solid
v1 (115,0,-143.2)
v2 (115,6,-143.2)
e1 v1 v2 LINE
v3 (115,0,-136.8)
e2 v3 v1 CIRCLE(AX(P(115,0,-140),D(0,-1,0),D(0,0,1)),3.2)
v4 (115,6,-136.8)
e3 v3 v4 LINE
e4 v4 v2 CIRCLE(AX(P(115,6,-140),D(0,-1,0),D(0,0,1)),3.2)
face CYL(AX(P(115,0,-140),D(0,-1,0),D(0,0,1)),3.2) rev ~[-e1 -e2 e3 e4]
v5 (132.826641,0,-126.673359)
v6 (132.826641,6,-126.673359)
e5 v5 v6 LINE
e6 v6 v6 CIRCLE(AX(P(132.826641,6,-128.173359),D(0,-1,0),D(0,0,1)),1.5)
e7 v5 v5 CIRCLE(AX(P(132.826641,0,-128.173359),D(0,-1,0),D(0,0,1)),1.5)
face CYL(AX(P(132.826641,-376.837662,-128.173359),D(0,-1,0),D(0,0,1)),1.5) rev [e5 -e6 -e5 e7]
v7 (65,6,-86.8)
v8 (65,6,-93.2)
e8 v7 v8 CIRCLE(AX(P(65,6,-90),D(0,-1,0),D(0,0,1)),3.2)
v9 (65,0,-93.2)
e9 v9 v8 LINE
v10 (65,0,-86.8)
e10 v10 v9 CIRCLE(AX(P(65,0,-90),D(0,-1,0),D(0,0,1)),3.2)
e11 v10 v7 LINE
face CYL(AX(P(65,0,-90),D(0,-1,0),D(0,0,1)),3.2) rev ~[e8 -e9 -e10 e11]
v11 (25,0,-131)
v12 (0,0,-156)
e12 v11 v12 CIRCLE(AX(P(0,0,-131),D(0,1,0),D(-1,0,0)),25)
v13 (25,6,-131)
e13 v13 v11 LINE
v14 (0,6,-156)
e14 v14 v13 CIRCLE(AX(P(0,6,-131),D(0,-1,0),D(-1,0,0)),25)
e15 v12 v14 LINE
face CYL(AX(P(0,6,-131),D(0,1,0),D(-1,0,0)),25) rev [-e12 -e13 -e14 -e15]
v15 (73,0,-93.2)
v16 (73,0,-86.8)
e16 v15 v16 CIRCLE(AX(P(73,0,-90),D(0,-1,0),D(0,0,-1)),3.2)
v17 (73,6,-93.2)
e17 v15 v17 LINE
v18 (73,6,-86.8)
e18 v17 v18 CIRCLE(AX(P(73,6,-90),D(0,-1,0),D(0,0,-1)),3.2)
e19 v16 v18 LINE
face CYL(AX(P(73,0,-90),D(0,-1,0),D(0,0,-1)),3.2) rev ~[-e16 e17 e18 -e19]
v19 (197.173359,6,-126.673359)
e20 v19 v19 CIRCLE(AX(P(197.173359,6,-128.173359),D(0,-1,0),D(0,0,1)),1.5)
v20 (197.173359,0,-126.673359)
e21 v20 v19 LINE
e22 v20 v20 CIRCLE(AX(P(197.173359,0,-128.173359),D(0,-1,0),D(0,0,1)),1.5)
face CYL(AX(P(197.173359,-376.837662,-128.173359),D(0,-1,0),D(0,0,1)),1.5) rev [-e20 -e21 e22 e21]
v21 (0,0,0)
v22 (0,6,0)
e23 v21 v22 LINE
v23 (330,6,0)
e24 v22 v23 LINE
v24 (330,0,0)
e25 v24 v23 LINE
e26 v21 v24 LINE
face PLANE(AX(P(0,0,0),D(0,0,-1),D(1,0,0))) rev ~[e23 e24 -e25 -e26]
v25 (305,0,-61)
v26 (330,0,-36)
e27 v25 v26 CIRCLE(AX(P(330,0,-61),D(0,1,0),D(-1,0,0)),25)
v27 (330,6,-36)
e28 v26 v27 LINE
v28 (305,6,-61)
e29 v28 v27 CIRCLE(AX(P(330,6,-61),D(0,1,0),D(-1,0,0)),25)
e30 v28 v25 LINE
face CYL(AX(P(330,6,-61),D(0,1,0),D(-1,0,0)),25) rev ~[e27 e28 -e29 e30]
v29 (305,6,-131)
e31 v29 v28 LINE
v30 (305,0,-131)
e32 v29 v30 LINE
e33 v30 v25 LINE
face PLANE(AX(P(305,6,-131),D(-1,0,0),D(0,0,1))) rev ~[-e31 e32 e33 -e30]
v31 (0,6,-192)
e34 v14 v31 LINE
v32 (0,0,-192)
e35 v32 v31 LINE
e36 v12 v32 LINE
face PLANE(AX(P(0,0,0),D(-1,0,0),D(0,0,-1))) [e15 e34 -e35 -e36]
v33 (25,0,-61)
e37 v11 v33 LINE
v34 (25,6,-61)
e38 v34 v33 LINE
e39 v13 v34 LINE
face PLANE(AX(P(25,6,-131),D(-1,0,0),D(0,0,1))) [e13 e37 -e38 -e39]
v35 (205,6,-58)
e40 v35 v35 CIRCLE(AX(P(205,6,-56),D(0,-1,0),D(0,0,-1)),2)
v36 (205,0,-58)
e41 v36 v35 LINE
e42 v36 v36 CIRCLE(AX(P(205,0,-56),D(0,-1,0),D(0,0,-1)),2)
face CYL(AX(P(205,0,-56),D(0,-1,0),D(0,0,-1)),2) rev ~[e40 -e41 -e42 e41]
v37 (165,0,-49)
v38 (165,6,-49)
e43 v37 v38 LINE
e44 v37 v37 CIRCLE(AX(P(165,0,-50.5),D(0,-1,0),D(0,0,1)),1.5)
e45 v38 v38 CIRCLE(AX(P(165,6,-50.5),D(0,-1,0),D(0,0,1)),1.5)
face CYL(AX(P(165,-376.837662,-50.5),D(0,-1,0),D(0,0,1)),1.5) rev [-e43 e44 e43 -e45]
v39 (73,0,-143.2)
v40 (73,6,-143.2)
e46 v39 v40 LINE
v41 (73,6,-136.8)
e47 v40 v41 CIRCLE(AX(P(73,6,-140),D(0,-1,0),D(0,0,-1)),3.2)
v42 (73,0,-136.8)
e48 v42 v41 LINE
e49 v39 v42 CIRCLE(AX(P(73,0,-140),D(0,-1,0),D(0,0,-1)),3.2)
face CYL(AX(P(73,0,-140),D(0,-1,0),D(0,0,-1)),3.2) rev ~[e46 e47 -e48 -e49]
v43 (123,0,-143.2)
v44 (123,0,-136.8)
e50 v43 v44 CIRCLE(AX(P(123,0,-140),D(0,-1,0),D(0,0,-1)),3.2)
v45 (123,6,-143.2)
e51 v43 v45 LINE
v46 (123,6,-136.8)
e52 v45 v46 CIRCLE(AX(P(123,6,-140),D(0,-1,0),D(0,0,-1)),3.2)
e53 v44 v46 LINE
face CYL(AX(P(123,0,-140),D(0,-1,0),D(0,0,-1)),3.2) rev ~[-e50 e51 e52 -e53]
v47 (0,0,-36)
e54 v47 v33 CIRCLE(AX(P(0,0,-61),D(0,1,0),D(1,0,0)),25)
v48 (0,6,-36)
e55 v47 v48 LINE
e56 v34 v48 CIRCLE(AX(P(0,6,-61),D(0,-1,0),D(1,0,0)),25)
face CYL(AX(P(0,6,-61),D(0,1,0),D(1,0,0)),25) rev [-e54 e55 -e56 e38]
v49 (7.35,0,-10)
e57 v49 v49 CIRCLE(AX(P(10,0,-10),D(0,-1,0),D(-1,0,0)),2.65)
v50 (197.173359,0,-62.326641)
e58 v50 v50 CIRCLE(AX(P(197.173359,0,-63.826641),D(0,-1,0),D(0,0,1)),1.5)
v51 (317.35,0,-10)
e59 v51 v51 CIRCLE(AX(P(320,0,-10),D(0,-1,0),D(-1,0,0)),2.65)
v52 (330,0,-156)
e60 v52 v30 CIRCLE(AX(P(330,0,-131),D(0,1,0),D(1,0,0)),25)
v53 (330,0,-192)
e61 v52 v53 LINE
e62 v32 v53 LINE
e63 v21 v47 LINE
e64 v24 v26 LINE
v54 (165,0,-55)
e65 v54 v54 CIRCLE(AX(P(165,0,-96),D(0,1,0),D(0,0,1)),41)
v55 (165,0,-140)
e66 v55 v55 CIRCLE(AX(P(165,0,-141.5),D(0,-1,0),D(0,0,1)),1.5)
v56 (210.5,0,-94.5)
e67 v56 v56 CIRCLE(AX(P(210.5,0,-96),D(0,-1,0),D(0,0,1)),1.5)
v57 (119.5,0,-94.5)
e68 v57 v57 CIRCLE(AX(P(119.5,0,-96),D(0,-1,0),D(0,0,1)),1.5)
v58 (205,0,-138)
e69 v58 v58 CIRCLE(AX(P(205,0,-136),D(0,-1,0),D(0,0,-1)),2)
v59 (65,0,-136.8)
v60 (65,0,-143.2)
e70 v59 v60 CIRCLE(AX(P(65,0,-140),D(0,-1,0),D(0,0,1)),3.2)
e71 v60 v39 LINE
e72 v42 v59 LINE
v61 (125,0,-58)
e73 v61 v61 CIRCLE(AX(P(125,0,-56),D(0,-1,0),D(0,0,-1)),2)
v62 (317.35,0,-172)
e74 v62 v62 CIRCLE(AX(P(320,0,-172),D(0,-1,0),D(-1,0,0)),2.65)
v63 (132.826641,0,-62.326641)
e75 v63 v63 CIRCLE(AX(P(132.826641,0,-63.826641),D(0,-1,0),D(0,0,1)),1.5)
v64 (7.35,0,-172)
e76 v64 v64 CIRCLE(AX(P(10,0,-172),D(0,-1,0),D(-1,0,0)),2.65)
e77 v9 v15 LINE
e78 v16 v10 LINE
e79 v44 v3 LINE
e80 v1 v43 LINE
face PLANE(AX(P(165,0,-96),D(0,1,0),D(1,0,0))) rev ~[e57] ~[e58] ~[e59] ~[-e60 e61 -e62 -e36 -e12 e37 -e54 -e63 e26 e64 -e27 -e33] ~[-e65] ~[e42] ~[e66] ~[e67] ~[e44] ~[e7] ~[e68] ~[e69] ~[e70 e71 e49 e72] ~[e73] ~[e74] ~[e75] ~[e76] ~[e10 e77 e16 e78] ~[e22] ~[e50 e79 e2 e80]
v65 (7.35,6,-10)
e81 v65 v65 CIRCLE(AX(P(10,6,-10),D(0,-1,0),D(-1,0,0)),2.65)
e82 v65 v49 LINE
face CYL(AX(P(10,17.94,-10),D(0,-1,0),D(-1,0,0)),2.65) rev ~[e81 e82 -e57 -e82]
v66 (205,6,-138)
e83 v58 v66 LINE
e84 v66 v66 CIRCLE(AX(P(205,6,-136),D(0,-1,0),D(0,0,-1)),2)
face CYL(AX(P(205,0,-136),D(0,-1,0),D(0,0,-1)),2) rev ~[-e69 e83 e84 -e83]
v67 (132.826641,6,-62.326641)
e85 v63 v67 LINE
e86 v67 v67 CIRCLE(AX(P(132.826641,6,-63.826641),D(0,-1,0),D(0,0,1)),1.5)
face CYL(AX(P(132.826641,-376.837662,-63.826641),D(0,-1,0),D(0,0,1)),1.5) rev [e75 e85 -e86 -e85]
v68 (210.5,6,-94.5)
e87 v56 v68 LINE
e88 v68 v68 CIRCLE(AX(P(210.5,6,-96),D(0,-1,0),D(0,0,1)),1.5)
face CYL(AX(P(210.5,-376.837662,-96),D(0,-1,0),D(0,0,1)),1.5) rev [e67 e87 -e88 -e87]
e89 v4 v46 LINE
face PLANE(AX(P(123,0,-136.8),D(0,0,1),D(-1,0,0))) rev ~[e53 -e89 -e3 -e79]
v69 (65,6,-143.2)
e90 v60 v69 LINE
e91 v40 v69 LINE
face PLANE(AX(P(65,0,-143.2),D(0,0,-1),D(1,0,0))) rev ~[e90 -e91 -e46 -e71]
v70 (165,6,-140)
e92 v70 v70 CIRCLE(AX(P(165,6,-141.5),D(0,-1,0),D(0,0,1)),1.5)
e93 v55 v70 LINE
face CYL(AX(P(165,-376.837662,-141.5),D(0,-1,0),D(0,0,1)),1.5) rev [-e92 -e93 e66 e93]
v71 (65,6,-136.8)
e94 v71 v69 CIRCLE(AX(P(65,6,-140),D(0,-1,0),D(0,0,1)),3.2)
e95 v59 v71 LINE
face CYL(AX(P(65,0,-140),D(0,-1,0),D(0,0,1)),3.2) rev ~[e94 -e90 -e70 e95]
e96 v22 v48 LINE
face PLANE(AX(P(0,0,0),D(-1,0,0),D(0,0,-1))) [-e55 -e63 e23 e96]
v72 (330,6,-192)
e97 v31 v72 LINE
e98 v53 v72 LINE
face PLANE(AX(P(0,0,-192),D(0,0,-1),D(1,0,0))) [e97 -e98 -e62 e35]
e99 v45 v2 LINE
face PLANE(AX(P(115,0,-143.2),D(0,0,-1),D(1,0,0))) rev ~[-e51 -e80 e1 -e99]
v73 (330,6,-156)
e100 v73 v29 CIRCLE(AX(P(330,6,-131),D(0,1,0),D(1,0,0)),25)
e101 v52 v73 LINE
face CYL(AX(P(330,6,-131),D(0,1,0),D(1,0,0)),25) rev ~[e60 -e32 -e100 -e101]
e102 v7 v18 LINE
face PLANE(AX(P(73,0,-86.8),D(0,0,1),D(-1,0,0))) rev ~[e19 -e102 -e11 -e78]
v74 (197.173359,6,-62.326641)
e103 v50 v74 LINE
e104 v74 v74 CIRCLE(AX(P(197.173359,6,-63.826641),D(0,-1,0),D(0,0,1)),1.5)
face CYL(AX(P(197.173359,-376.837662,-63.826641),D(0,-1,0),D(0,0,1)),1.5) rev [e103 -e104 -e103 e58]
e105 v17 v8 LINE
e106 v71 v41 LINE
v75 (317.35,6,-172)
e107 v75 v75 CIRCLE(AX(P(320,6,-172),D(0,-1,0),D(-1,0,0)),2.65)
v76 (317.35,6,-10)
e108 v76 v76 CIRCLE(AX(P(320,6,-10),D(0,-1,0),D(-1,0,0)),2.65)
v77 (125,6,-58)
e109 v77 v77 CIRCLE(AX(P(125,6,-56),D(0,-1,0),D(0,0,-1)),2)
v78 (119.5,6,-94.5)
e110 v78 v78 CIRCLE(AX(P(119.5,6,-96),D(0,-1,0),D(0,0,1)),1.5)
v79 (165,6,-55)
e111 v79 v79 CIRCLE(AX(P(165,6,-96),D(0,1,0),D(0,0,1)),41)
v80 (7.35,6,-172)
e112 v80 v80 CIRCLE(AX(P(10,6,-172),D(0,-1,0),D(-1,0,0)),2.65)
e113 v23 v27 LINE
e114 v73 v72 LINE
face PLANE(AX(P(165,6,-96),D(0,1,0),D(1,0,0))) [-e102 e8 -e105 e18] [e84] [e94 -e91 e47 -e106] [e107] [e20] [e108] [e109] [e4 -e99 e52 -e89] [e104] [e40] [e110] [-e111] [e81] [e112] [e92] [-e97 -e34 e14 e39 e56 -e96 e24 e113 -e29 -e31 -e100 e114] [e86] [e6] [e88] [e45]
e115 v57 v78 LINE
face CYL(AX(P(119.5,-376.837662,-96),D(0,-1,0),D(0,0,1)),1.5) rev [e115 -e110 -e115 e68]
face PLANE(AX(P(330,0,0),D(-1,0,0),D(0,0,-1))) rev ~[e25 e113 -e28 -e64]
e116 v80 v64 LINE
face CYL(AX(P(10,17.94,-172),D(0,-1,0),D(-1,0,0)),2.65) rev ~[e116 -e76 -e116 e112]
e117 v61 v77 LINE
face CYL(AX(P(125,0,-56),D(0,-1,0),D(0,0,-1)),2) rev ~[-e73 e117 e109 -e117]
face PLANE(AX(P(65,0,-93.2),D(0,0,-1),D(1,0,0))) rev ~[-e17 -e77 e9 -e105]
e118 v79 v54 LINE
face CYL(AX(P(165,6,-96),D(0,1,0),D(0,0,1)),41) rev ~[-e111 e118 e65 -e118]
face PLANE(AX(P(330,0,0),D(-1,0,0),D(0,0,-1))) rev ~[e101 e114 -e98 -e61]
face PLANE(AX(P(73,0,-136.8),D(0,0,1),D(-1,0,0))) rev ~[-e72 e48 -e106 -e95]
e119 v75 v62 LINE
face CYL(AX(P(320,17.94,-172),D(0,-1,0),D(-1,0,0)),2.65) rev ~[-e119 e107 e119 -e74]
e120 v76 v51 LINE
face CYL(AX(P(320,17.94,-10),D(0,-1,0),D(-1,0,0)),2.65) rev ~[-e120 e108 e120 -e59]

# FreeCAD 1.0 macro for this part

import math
import FreeCAD as App
import Part
import Sketcher
from FreeCAD import Vector


def add_polygon(sketch, points):
    """Adds a closed chain of lines whose ends are joined by coincident constraints."""
    first, n = sketch.GeometryCount, len(points)
    for a, b in zip(points, points[1:] + points[:1]):
        sketch.addGeometry(Part.LineSegment(App.Vector(*a, 0), App.Vector(*b, 0)), False)
    for i in range(n):
        sketch.addConstraint(Sketcher.Constraint("Coincident", first + i, 2, first + (i + 1) % n, 1))

doc = App.newDocument("Part")
params = doc.addObject("Spreadsheet::Sheet", "Params")
for row, (alias, value) in enumerate([
    ("sketch1_width", "330 mm"),
    ("sketch1_height", "192 mm"),
    ("pad1_length", "6 mm"),
    ("sketch2_diameter", "3 mm"),
    ("sketch3_diameter", "82 mm"),
    ("sketch4_radius", "3.2 mm"),
    ("sketch4_width", "8 mm"),
    ("pocket3_length", "10 mm"),
    ("sketch5_diameter", "4 mm"),
    ("pocket4_length", "10 mm"),
    ("sketch6_diameter", "5.3 mm"),
    ("hole_diameter", "5.3 mm"),
    ("hole_depth", "11.94 mm"),
    ("sketch7_radius", "25 mm"),
    ("sketch7_height", "70 mm"),
], start=1):
    params.set(f"A{row}", alias)
    params.set(f"B{row}", "=" + value)
    params.setAlias(f"B{row}", alias)

body = doc.addObject("PartDesign::Body", "Body")

# Sketch on XZ plane
sketch1 = body.newObject("Sketcher::SketchObject", "Sketch")
sketch1.AttachmentSupport = (doc.getObject("XZ_Plane"), [""])
sketch1.MapMode = "FlatFace"
add_polygon(sketch1, [(0, -192), (0, 0), (330, 0), (330, -192)])  # lines 0-3
sketch1.addConstraint([
    Sketcher.Constraint("Vertical", 0),
    Sketcher.Constraint("Horizontal", 1),
    Sketcher.Constraint("Vertical", 2),
    Sketcher.Constraint("Horizontal", 3),
    Sketcher.Constraint("Coincident", 0, 2, -1, 1),
    Sketcher.Constraint("DistanceX", 1, 1, 1, 2, 330.0),
    Sketcher.Constraint("DistanceY", 0, 1, 0, 2, 192.0),
])
sketch1.setExpression("Constraints[9]", "Params.sketch1_width")
sketch1.setExpression("Constraints[10]", "Params.sketch1_height")
pad1 = body.newObject("PartDesign::Pad", "Pad")
pad1.Profile = sketch1
pad1.setExpression("Length", "Params.pad1_length")
pad1.Reversed = True

# Sketch on XZ plane
sketch2 = body.newObject("Sketcher::SketchObject", "Sketch001")
sketch2.AttachmentSupport = (doc.getObject("XZ_Plane"), [""])
sketch2.MapMode = "FlatFace"
sketch2.AttachmentOffset = App.Placement(Vector(0, 0, -6), App.Rotation())
sketch2.addGeometry([
    Part.Circle(Vector(165, -141.5, 0), Vector(0, 0, 1), 1.5),  # 0
    Part.Circle(Vector(197.173359, -128.173359, 0), Vector(0, 0, 1), 1.5),  # 1
    Part.Circle(Vector(210.5, -96, 0), Vector(0, 0, 1), 1.5),  # 2
    Part.Circle(Vector(165, -50.5, 0), Vector(0, 0, 1), 1.5),  # 3
    Part.Circle(Vector(132.826641, -63.826641, 0), Vector(0, 0, 1), 1.5),  # 4
    Part.Circle(Vector(119.5, -96, 0), Vector(0, 0, 1), 1.5),  # 5
    Part.Circle(Vector(132.826641, -128.173359, 0), Vector(0, 0, 1), 1.5),  # 6
    Part.Circle(Vector(197.173359, -63.826641, 0), Vector(0, 0, 1), 1.5),  # 7
], False)
sketch2.addConstraint([
    Sketcher.Constraint("Equal", 0, 1),
    Sketcher.Constraint("Equal", 1, 2),
    Sketcher.Constraint("Equal", 2, 3),
    Sketcher.Constraint("Equal", 3, 4),
    Sketcher.Constraint("Equal", 4, 5),
    Sketcher.Constraint("Equal", 5, 6),
    Sketcher.Constraint("Equal", 6, 7),
    Sketcher.Constraint("Horizontal", 2, 3, 5, 3),
    Sketcher.Constraint("Horizontal", 1, 3, 6, 3),
    Sketcher.Constraint("Horizontal", 4, 3, 7, 3),
    Sketcher.Constraint("Vertical", 0, 3, 3, 3),
    Sketcher.Constraint("Vertical", 4, 3, 6, 3),
    Sketcher.Constraint("Vertical", 1, 3, 7, 3),
    Sketcher.Constraint("Diameter", 0, 3.0),
    Sketcher.Constraint("DistanceX", -1, 1, 0, 3, 165.0),
    Sketcher.Constraint("DistanceY", 2, 3, -1, 1, 96.0),
    Sketcher.Constraint("DistanceY", 0, 3, 3, 3, 91.0),
    Sketcher.Constraint("DistanceX", 5, 3, 2, 3, 91.0),
    Sketcher.Constraint("DistanceY", 0, 3, -1, 1, 141.5),
    Sketcher.Constraint("DistanceX", -1, 1, 2, 3, 210.5),
    Sketcher.Constraint("DistanceX", -1, 1, 1, 3, 197.173359),
    Sketcher.Constraint("DistanceY", 1, 3, -1, 1, 128.173359),
    Sketcher.Constraint("DistanceX", -1, 1, 4, 3, 132.826641),
    Sketcher.Constraint("DistanceY", 4, 3, -1, 1, 63.826641),
])
sketch2.setExpression("Constraints[13]", "Params.sketch2_diameter")
pocket1 = body.newObject("PartDesign::Pocket", "Pocket")
pocket1.Profile = sketch2
pocket1.Type = "ThroughAll"
pocket1.Midplane = True

# Sketch on XZ plane
sketch3 = body.newObject("Sketcher::SketchObject", "Sketch002")
sketch3.AttachmentSupport = (doc.getObject("XZ_Plane"), [""])
sketch3.MapMode = "FlatFace"
sketch3.AttachmentOffset = App.Placement(Vector(0, 0, -6), App.Rotation())
sketch3.addGeometry(Part.Circle(Vector(165, -96, 0), Vector(0, 0, 1), 41), False)
sketch3.addConstraint([
    Sketcher.Constraint("Diameter", 0, 82.0),
    Sketcher.Constraint("DistanceX", -1, 1, 0, 3, 165.0),
    Sketcher.Constraint("DistanceY", 0, 3, -1, 1, 96.0),
])
sketch3.setExpression("Constraints[0]", "Params.sketch3_diameter")
pocket2 = body.newObject("PartDesign::Pocket", "Pocket001")
pocket2.Profile = sketch3
pocket2.Type = "ThroughAll"
pocket2.Reversed = True

# Sketch on XZ plane
sketch4 = body.newObject("Sketcher::SketchObject", "Sketch003")
sketch4.AttachmentSupport = (doc.getObject("XZ_Plane"), [""])
sketch4.MapMode = "FlatFace"
sketch4.addGeometry([
    Part.LineSegment(Vector(123, -136.8, 0), Vector(115, -136.8, 0)),  # 0
    Part.ArcOfCircle(Part.Circle(Vector(115, -140, 0), Vector(0, 0, 1), 3.2), math.radians(90), math.radians(270)),  # 1
    Part.LineSegment(Vector(115, -143.2, 0), Vector(123, -143.2, 0)),  # 2
    Part.ArcOfCircle(Part.Circle(Vector(123, -140, 0), Vector(0, 0, 1), 3.2), math.radians(-90), math.radians(90)),  # 3
    Part.LineSegment(Vector(73, -136.8, 0), Vector(65, -136.8, 0)),  # 4
    Part.ArcOfCircle(Part.Circle(Vector(65, -140, 0), Vector(0, 0, 1), 3.2), math.radians(90), math.radians(270)),  # 5
    Part.LineSegment(Vector(65, -143.2, 0), Vector(73, -143.2, 0)),  # 6
    Part.ArcOfCircle(Part.Circle(Vector(73, -140, 0), Vector(0, 0, 1), 3.2), math.radians(-90), math.radians(90)),  # 7
    Part.LineSegment(Vector(73, -86.8, 0), Vector(65, -86.8, 0)),  # 8
    Part.ArcOfCircle(Part.Circle(Vector(65, -90, 0), Vector(0, 0, 1), 3.2), math.radians(90), math.radians(270)),  # 9
    Part.LineSegment(Vector(65, -93.2, 0), Vector(73, -93.2, 0)),  # 10
    Part.ArcOfCircle(Part.Circle(Vector(73, -90, 0), Vector(0, 0, 1), 3.2), math.radians(-90), math.radians(90)),  # 11
], False)
sketch4.addConstraint([
    Sketcher.Constraint("Tangent", 0, 2, 1, 1),
    Sketcher.Constraint("Tangent", 1, 2, 2, 1),
    Sketcher.Constraint("Tangent", 2, 2, 3, 1),
    Sketcher.Constraint("Tangent", 3, 2, 0, 1),
    Sketcher.Constraint("Tangent", 4, 2, 5, 1),
    Sketcher.Constraint("Tangent", 5, 2, 6, 1),
    Sketcher.Constraint("Tangent", 6, 2, 7, 1),
    Sketcher.Constraint("Tangent", 7, 2, 4, 1),
    Sketcher.Constraint("Tangent", 8, 2, 9, 1),
    Sketcher.Constraint("Tangent", 9, 2, 10, 1),
    Sketcher.Constraint("Tangent", 10, 2, 11, 1),
    Sketcher.Constraint("Tangent", 11, 2, 8, 1),
    Sketcher.Constraint("Horizontal", 0),
    Sketcher.Constraint("Horizontal", 2),
    Sketcher.Constraint("Horizontal", 4),
    Sketcher.Constraint("Horizontal", 6),
    Sketcher.Constraint("Horizontal", 8),
    Sketcher.Constraint("Horizontal", 10),
    Sketcher.Constraint("Equal", 3, 5),
    Sketcher.Constraint("Equal", 7, 9),
    Sketcher.Constraint("Horizontal", 3, 3, 5, 3),
    Sketcher.Constraint("Vertical", 5, 3, 9, 3),
    Sketcher.Constraint("Vertical", 7, 3, 11, 3),
    Sketcher.Constraint("Equal", 2, 4),
    Sketcher.Constraint("Radius", 1, 3.2),
    Sketcher.Constraint("DistanceX", 0, 2, 0, 1, 8.0),
    Sketcher.Constraint("DistanceX", -1, 1, 1, 3, 115.0),
    Sketcher.Constraint("DistanceY", 1, 3, -1, 1, 140.0),
    Sketcher.Constraint("DistanceX", -1, 1, 5, 3, 65.0),
    Sketcher.Constraint("DistanceY", 9, 3, -1, 1, 90.0),
])
sketch4.setExpression("Constraints[24]", "Params.sketch4_radius")
sketch4.setExpression("Constraints[25]", "Params.sketch4_width")
pocket3 = body.newObject("PartDesign::Pocket", "Pocket002")
pocket3.Profile = sketch4
pocket3.setExpression("Length", "Params.pocket3_length")

# Sketch on XZ plane
sketch5 = body.newObject("Sketcher::SketchObject", "Sketch004")
sketch5.AttachmentSupport = (doc.getObject("XZ_Plane"), [""])
sketch5.MapMode = "FlatFace"
sketch5.addGeometry([
    Part.Circle(Vector(125, -56, 0), Vector(0, 0, 1), 2),
    Part.Circle(Vector(205, -56, 0), Vector(0, 0, 1), 2),
    Part.Circle(Vector(205, -136, 0), Vector(0, 0, 1), 2),
], False)
sketch5.addConstraint([
    Sketcher.Constraint("Equal", 0, 1),
    Sketcher.Constraint("Equal", 1, 2),
    Sketcher.Constraint("Horizontal", 0, 3, 1, 3),
    Sketcher.Constraint("Vertical", 1, 3, 2, 3),
    Sketcher.Constraint("Diameter", 0, 4.0),
    Sketcher.Constraint("DistanceX", -1, 1, 0, 3, 125.0),
    Sketcher.Constraint("DistanceY", 0, 3, -1, 1, 56.0),
    Sketcher.Constraint("DistanceX", -1, 1, 1, 3, 205.0),
    Sketcher.Constraint("DistanceY", 2, 3, -1, 1, 136.0),
])
sketch5.setExpression("Constraints[4]", "Params.sketch5_diameter")
pocket4 = body.newObject("PartDesign::Pocket", "Pocket003")
pocket4.Profile = sketch5
pocket4.setExpression("Length", "Params.pocket4_length")

# Sketch on XZ plane
sketch6 = body.newObject("Sketcher::SketchObject", "Sketch005")
sketch6.AttachmentSupport = (doc.getObject("XZ_Plane"), [""])
sketch6.MapMode = "FlatFace"
sketch6.AttachmentOffset = App.Placement(Vector(0, 0, -6), App.Rotation())
sketch6.addGeometry([
    Part.Circle(Vector(10, -172, 0), Vector(0, 0, 1), 2.65),
    Part.Circle(Vector(10, -10, 0), Vector(0, 0, 1), 2.65),
    Part.Circle(Vector(320, -10, 0), Vector(0, 0, 1), 2.65),
    Part.Circle(Vector(320, -172, 0), Vector(0, 0, 1), 2.65),
], False)
sketch6.addConstraint([
    Sketcher.Constraint("Equal", 0, 1),
    Sketcher.Constraint("Equal", 1, 2),
    Sketcher.Constraint("Equal", 2, 3),
    Sketcher.Constraint("Horizontal", 1, 3, 2, 3),
    Sketcher.Constraint("Horizontal", 0, 3, 3, 3),
    Sketcher.Constraint("Vertical", 0, 3, 1, 3),
    Sketcher.Constraint("Vertical", 2, 3, 3, 3),
    Sketcher.Constraint("Diameter", 0, 5.3),
    Sketcher.Constraint("DistanceX", -1, 1, 0, 3, 10.0),
    Sketcher.Constraint("DistanceY", 0, 3, -1, 1, 172.0),
    Sketcher.Constraint("DistanceY", 1, 3, -1, 1, 10.0),
    Sketcher.Constraint("DistanceX", -1, 1, 2, 3, 320.0),
])
sketch6.setExpression("Constraints[7]", "Params.sketch6_diameter")
doc.recompute()
hole = body.newObject("PartDesign::Hole", "Hole")
hole.Profile = sketch6
hole.ThreadType = "None"
hole.setExpression("Diameter", "Params.hole_diameter")
hole.DepthType = "Dimension"
hole.setExpression("Depth", "Params.hole_depth")
hole.DrillPoint = "Angled"
hole.DrillPointAngle = 118
hole.Reversed = True

# Sketch on XZ plane
sketch7 = body.newObject("Sketcher::SketchObject", "Sketch006")
sketch7.AttachmentSupport = (doc.getObject("XZ_Plane"), [""])
sketch7.MapMode = "FlatFace"
sketch7.AttachmentOffset = App.Placement(Vector(0, 0, -6), App.Rotation())
sketch7.addGeometry([
    Part.LineSegment(Vector(25, -61, 0), Vector(25, -131, 0)),  # 0
    Part.ArcOfCircle(Part.Circle(Vector(0, -131, 0), Vector(0, 0, 1), 25), math.radians(180), math.radians(360)),  # 1
    Part.LineSegment(Vector(-25, -131, 0), Vector(-25, -61, 0)),  # 2
    Part.ArcOfCircle(Part.Circle(Vector(0, -61, 0), Vector(0, 0, 1), 25), math.radians(0), math.radians(180)),  # 3
    Part.LineSegment(Vector(305, -131, 0), Vector(305, -61, 0)),  # 4
    Part.ArcOfCircle(Part.Circle(Vector(330, -61, 0), Vector(0, 0, 1), 25), math.radians(0), math.radians(180)),  # 5
    Part.LineSegment(Vector(355, -61, 0), Vector(355, -131, 0)),  # 6
    Part.ArcOfCircle(Part.Circle(Vector(330, -131, 0), Vector(0, 0, 1), 25), math.radians(180), math.radians(360)),  # 7
], False)
sketch7.addConstraint([
    Sketcher.Constraint("Tangent", 0, 2, 1, 2),
    Sketcher.Constraint("Tangent", 1, 1, 2, 1),
    Sketcher.Constraint("Tangent", 2, 2, 3, 2),
    Sketcher.Constraint("Tangent", 3, 1, 0, 1),
    Sketcher.Constraint("Tangent", 4, 2, 5, 2),
    Sketcher.Constraint("Tangent", 5, 1, 6, 1),
    Sketcher.Constraint("Tangent", 6, 2, 7, 2),
    Sketcher.Constraint("Tangent", 7, 1, 4, 1),
    Sketcher.Constraint("Vertical", 0),
    Sketcher.Constraint("Vertical", 2),
    Sketcher.Constraint("Vertical", 4),
    Sketcher.Constraint("Vertical", 6),
    Sketcher.Constraint("Equal", 3, 5),
    Sketcher.Constraint("PointOnObject", 1, 3, -2),
    Sketcher.Constraint("Horizontal", 3, 3, 5, 3),
    Sketcher.Constraint("Horizontal", 1, 3, 7, 3),
    Sketcher.Constraint("Radius", 1, 25.0),
    Sketcher.Constraint("DistanceY", 0, 2, 0, 1, 70.0),
    Sketcher.Constraint("DistanceY", 1, 3, -1, 1, 131.0),
    Sketcher.Constraint("DistanceX", -1, 1, 5, 3, 330.0),
])
sketch7.setExpression("Constraints[16]", "Params.sketch7_radius")
sketch7.setExpression("Constraints[17]", "Params.sketch7_height")
pocket5 = body.newObject("PartDesign::Pocket", "Pocket004")
pocket5.Profile = sketch7
pocket5.Type = "ThroughAll"
pocket5.Reversed = True

doc.recompute()
